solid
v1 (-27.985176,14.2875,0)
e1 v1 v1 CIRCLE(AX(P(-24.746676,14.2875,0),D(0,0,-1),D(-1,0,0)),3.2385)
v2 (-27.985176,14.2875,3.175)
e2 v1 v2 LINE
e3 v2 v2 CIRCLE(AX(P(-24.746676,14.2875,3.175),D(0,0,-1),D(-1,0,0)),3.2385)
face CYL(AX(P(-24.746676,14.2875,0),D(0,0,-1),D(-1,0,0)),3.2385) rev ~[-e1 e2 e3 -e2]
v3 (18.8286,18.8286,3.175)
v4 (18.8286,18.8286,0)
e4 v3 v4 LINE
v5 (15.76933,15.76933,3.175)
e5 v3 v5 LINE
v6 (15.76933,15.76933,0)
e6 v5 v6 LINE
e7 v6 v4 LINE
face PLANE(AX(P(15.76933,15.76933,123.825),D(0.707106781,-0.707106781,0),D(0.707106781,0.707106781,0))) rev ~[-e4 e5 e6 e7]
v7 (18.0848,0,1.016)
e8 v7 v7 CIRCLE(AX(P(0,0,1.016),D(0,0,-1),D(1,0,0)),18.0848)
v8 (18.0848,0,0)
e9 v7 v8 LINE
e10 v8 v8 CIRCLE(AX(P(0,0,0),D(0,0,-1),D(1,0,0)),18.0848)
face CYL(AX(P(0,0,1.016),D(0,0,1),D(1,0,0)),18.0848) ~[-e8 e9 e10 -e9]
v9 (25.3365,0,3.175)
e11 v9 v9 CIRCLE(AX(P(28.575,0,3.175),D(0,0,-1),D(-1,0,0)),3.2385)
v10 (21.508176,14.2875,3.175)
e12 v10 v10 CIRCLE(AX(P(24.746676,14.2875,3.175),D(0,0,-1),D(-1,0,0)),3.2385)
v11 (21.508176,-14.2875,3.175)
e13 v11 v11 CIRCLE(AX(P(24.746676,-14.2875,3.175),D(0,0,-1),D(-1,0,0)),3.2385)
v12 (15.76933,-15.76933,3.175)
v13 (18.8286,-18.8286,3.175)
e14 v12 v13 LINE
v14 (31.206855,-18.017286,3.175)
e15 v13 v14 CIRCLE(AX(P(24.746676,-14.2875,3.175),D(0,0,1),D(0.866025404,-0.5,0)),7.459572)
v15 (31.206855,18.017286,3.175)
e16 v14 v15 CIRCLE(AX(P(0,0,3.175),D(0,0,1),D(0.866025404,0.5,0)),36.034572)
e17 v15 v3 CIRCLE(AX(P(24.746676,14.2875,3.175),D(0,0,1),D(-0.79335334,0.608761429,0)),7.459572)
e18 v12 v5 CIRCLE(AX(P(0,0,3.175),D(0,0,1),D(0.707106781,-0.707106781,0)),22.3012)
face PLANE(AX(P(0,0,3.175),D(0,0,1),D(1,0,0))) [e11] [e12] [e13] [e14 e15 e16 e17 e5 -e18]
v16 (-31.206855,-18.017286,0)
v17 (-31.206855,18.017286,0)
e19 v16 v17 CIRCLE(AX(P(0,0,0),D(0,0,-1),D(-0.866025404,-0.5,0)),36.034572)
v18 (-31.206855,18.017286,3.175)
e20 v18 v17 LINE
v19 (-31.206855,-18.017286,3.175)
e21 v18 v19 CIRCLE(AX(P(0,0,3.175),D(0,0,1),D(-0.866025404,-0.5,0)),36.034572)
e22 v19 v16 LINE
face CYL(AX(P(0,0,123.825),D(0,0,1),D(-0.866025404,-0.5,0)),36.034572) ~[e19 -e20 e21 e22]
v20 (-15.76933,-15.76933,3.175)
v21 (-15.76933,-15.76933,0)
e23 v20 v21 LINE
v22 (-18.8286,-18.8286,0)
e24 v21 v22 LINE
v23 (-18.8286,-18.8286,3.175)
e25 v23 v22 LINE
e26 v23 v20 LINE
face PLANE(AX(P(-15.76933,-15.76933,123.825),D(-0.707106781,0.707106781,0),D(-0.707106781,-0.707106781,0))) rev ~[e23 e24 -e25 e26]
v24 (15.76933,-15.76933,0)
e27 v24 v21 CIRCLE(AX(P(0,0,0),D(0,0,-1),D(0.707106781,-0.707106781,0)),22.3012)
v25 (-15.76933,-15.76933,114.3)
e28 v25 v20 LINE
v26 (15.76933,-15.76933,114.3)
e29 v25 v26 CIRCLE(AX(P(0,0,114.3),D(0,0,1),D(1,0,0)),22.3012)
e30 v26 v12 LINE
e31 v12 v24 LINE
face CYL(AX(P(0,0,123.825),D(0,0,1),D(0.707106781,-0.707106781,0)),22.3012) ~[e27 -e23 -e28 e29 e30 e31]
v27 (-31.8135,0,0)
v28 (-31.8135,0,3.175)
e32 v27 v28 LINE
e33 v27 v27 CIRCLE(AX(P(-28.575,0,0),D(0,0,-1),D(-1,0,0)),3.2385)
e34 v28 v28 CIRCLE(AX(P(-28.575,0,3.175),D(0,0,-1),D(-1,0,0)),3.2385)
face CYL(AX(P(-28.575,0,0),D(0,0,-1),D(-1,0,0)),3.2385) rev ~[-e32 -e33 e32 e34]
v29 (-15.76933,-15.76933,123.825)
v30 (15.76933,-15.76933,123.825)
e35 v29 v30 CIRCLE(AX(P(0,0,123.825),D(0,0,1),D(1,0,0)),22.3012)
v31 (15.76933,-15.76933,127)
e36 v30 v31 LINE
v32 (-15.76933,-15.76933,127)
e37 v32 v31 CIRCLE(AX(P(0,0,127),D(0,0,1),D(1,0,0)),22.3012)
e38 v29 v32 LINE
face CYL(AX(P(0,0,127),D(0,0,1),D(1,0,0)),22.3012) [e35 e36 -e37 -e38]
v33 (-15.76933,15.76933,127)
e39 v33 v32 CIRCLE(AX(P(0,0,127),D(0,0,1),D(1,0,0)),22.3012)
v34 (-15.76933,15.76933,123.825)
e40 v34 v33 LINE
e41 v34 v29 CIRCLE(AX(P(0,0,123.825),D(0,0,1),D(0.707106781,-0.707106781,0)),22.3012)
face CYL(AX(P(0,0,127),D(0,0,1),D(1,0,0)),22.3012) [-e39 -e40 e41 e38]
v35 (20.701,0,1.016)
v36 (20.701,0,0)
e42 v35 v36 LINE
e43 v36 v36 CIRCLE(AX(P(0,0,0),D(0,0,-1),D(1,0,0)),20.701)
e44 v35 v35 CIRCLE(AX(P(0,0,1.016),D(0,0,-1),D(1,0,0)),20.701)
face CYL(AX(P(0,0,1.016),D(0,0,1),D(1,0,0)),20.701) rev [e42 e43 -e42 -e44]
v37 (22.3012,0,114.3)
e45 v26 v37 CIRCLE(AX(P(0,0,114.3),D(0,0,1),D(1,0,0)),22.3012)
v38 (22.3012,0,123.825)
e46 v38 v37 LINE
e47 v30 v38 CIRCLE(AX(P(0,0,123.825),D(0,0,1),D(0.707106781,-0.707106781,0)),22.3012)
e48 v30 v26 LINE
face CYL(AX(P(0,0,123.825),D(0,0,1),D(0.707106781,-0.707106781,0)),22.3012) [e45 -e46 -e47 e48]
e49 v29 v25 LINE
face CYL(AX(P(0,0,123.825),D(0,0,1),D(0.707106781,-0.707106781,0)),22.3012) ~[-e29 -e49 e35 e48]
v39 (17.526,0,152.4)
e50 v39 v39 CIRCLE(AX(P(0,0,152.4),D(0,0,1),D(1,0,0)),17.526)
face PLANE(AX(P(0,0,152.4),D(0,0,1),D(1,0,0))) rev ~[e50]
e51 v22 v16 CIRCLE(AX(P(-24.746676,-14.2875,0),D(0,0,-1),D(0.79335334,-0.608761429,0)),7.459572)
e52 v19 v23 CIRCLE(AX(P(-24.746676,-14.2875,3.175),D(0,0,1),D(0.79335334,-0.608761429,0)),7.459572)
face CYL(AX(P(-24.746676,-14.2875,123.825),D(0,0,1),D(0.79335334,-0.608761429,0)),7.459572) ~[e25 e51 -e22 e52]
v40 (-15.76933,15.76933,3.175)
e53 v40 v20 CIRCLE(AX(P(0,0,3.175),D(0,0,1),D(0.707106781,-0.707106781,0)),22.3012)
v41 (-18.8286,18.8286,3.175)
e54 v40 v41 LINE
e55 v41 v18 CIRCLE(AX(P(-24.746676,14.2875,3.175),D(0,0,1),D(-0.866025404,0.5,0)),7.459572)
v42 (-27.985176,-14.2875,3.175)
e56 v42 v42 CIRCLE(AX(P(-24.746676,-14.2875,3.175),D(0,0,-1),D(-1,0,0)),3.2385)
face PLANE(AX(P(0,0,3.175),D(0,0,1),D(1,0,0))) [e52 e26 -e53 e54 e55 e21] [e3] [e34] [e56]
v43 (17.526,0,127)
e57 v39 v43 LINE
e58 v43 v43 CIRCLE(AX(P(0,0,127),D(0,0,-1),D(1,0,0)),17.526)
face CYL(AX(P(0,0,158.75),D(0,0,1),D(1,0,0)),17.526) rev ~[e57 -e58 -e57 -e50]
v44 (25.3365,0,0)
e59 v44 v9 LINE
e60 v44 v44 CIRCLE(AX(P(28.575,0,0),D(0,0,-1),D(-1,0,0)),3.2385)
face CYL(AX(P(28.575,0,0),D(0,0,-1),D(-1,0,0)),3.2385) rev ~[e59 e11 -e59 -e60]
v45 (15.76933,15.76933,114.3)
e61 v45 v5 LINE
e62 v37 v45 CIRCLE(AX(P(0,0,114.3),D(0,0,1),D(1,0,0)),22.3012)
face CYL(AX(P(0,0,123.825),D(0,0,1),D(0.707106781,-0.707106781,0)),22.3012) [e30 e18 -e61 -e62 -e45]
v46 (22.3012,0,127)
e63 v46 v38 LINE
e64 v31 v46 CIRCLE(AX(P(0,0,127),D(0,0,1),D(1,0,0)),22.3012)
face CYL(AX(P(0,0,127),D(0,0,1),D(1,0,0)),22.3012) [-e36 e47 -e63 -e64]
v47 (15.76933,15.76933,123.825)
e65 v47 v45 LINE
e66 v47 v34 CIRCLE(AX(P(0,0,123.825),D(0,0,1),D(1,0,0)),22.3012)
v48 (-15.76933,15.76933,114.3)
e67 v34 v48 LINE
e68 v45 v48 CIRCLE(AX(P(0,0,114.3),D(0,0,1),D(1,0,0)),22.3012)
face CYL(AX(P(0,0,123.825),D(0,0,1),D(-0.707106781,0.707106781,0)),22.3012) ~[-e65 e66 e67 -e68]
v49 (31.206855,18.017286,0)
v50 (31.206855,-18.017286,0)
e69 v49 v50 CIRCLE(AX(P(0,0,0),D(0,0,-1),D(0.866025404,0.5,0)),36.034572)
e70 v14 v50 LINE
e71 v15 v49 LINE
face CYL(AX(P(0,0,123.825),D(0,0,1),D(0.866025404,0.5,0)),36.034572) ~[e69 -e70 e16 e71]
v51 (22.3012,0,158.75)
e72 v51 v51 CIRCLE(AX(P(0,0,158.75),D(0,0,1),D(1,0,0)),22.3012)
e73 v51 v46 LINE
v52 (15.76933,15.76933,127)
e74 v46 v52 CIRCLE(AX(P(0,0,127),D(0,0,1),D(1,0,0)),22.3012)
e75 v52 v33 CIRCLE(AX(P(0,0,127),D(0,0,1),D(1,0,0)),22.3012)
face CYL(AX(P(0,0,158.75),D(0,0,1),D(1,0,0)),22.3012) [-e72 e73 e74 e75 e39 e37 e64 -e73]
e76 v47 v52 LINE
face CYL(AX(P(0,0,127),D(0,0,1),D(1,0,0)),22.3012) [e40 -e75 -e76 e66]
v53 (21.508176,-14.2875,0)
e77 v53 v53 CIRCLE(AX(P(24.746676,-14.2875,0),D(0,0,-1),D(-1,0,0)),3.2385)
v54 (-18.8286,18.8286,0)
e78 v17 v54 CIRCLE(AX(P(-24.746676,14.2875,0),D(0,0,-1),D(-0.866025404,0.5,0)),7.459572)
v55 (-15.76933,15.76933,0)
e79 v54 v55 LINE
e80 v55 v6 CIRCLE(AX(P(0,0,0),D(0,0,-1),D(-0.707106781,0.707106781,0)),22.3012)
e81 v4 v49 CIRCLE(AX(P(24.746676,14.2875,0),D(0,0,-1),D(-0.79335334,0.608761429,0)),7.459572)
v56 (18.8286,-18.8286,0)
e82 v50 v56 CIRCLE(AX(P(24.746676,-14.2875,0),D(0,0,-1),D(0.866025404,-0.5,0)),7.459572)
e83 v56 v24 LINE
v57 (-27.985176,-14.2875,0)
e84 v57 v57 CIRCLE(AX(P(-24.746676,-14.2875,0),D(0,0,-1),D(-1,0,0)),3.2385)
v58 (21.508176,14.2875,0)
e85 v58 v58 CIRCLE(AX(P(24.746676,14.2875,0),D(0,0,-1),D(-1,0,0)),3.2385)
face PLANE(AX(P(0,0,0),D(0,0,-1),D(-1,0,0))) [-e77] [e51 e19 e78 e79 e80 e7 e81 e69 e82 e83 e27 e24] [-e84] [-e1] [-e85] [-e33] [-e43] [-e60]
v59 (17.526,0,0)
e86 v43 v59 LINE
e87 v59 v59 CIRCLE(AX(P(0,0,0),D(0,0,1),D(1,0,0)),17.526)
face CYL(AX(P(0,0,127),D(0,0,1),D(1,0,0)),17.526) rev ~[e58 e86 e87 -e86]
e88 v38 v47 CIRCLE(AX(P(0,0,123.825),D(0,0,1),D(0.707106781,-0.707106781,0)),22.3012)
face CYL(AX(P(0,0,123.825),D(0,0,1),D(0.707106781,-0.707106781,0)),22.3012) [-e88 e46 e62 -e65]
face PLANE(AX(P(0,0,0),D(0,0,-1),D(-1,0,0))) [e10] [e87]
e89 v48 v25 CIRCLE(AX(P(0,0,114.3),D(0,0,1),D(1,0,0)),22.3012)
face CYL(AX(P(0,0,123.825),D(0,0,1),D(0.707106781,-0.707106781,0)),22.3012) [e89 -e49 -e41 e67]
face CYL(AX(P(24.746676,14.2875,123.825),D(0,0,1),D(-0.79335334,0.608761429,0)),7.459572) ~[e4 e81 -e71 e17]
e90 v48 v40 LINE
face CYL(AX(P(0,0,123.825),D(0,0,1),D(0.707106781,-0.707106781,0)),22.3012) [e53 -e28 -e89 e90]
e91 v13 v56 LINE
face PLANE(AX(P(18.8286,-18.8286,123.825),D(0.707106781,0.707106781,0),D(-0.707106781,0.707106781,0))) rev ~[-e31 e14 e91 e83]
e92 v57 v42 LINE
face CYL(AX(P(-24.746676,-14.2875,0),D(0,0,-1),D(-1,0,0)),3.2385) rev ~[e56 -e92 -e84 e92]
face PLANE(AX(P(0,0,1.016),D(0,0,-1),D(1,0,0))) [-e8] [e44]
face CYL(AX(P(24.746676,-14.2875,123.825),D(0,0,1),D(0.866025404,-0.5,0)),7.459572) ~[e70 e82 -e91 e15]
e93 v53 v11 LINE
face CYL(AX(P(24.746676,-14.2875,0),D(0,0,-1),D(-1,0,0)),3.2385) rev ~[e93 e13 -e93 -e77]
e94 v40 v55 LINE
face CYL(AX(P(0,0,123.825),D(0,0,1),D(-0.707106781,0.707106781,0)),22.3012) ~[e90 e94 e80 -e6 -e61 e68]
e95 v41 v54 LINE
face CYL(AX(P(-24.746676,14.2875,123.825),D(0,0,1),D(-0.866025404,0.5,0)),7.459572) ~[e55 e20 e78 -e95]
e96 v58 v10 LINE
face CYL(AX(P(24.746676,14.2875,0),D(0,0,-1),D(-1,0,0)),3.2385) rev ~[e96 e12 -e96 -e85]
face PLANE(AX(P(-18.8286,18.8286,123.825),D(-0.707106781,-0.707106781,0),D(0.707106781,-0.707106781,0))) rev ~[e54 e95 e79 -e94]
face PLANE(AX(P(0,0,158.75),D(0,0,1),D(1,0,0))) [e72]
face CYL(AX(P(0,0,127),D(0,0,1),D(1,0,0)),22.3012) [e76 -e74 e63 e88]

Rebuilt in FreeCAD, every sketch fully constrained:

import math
import FreeCAD as App
import Part
import Sketcher
from FreeCAD import Vector
Q = App.Units.Quantity

doc = App.newDocument("Part")
params = doc.addObject("Spreadsheet::Sheet", "Params")
for row, (alias, value) in enumerate([
    ("sketch1_diameter", "1.66 in"),
    ("sketch1_diameter2", "1.38 in"),
    ("pad1_length", "10 in"),
    ("sketch2_diameter", "1.66 in"),
    ("pad2_length", "0.25 in"),
    ("pocket1_length", "5 in"),
    ("sketch4_diameter", "2.75 in"),
    ("pad3_length", "0.125 in"),
    ("sketch5_radius", "0.125 in"),
    ("sketch6_diameter", "1.66 in"),
    ("pocket3_length", "0.25 in"),
    ("sketch7_diameter", "1.66 in"),
    ("pad4_length", "0.25 in"),
    ("sketch8_radius", "0.83 in"),
    ("sketch8_radius2", "1.375 in"),
    ("sketch9_radius", "1.375 in"),
    ("pad5_length", "0.125 in"),
    ("sketch10_diameter", "1.63 in"),
    ("sketch10_diameter2", "1.424 in"),
    ("pocket5_length", "0.04 in"),
    ("sketch11_diameter", "1.63 in"),
    ("sketch11_diameter2", "1.756 in"),
    ("pad6_length", "0.125 in"),
    ("sketch12_diameter", "0.25 in"),
    ("sketch12_diameter2", "1.66 in"),
    ("sketch12_radius", "0.878 in"),
    ("pad7_length", "4.875 in"),
    ("sketch13_diameter", "1.756 in"),
    ("pocket6_length", "4.75 in"),
    ("sketch14_diameter", "1.38 in"),
    ("sketch15_diameter", "1.63 in"),
    ("sketch15_diameter2", "1.424 in"),
    ("pocket8_length", "0.04 in"),
    ("sketch16_diameter", "1.756 in"),
    ("pocket9_length", "0.5 in"),
    ("sketch17_diameter", "1.63 in"),
    ("sketch17_diameter2", "1.38 in"),
    ("sketch17_diameter3", "1.756 in"),
    ("sketch17_diameter4", "1.424 in"),
    ("pad8_length", "1.25 in"),
    ("sketch18_diameter", "1.63 in"),
    ("sketch18_diameter2", "1.424 in"),
    ("pad9_length", "1.29 in"),
    ("sketch19_diameter", "1.38 in"),
    ("pad10_length", "0.25 in"),
    ("sketch20_diameter", "0.255 in"),
], start=1):
    params.set(f"A{row}", alias)
    params.set(f"B{row}", "=" + value)
    params.setAlias(f"B{row}", alias)

body = doc.addObject("PartDesign::Body", "Body")

sketch1 = body.newObject("Sketcher::SketchObject", "Sketch")
sketch1.AttachmentSupport = (doc.getObject("XY_Plane"), [""])
sketch1.MapMode = "FlatFace"
sketch1.addGeometry(Part.Circle(Vector(0, 0, 0), Vector(0, 0, 1), 21.082), False)
sketch1.addGeometry(Part.Circle(Vector(0, 0, 0), Vector(0, 0, 1), 17.526), False)
sketch1.addConstraint(Sketcher.Constraint("Coincident", 0, 3, -1, 1))
sketch1.addConstraint(Sketcher.Constraint("Coincident", 1, 3, -1, 1))
sketch1.addConstraint(Sketcher.Constraint("Diameter", 0, Q("1.66 in")))
sketch1.addConstraint(Sketcher.Constraint("Diameter", 1, Q("1.38 in")))
sketch1.setExpression("Constraints[2]", "Params.sketch1_diameter")
sketch1.setExpression("Constraints[3]", "Params.sketch1_diameter2")
pad1 = body.newObject("PartDesign::Pad", "Pad")
pad1.Profile = sketch1
pad1.setExpression("Length", "Params.pad1_length")

sketch2 = body.newObject("Sketcher::SketchObject", "Sketch001")
sketch2.AttachmentSupport = (doc.getObject("XY_Plane"), [""])
sketch2.MapMode = "FlatFace"
sketch2.AttachmentOffset = App.Placement(Vector(0, 0, -0.25 * 25.4), App.Rotation())
sketch2.addGeometry(Part.Circle(Vector(0, 0, 0), Vector(0, 0, 1), 21.082), False)
sketch2.addConstraint(Sketcher.Constraint("Coincident", 0, 3, -1, 1))
sketch2.addConstraint(Sketcher.Constraint("Diameter", 0, Q("1.66 in")))
sketch2.setExpression("Constraints[1]", "Params.sketch2_diameter")
pad2 = body.newObject("PartDesign::Pad", "Pad001")
pad2.Profile = sketch2
pad2.setExpression("Length", "Params.pad2_length")

sketch3 = body.newObject("Sketcher::SketchObject", "Sketch002")
sketch3.AttachmentSupport = (doc.getObject("XY_Plane"), [""])
sketch3.MapMode = "FlatFace"
sketch3.AttachmentOffset = App.Placement(Vector(0, 0, 10 * 25.4), App.Rotation())
sketch3.addGeometry(Part.Circle(Vector(0, 0, 0), Vector(0, 0, 1), 25.868376), False)
sketch3.addConstraint(Sketcher.Constraint("Coincident", 0, 3, -1, 1))
sketch3.addConstraint(Sketcher.Constraint("Diameter", 0, Q("51.736753 mm")))
pocket1 = body.newObject("PartDesign::Pocket", "Pocket")
pocket1.Profile = sketch3
pocket1.setExpression("Length", "Params.pocket1_length")

sketch4 = body.newObject("Sketcher::SketchObject", "Sketch003")
sketch4.AttachmentSupport = (doc.getObject("XY_Plane"), [""])
sketch4.MapMode = "FlatFace"
sketch4.AttachmentOffset = App.Placement(Vector(0, 0, 5 * 25.4), App.Rotation())
sketch4.addGeometry(Part.Circle(Vector(0, 0, 0), Vector(0, 0, 1), 34.925), False)
sketch4.addGeometry(Part.Circle(Vector(0, 0, 0), Vector(0, 0, 1), 19.091061), False)
sketch4.addConstraint(Sketcher.Constraint("Coincident", 0, 3, -1, 1))
sketch4.addConstraint(Sketcher.Constraint("Coincident", 1, 3, -1, 1))
sketch4.addConstraint(Sketcher.Constraint("Diameter", 0, Q("2.75 in")))
sketch4.addConstraint(Sketcher.Constraint("Diameter", 1, Q("38.182122 mm")))
sketch4.setExpression("Constraints[2]", "Params.sketch4_diameter")
pad3 = body.newObject("PartDesign::Pad", "Pad002")
pad3.Profile = sketch4
pad3.setExpression("Length", "Params.pad3_length")
pad3.Reversed = True

sketch5 = body.newObject("Sketcher::SketchObject", "Sketch004")
sketch5.AttachmentSupport = (doc.getObject("XY_Plane"), [""])
sketch5.MapMode = "FlatFace"
sketch5.AttachmentOffset = App.Placement(Vector(0, 0, 5 * 25.4), App.Rotation())
sketch5.addGeometry(Part.ArcOfCircle(Part.Circle(Vector(0, 28.575, 0), Vector(0, 0, 1), 3.175), math.radians(90), math.radians(270)), False)
sketch5.addGeometry(Part.ArcOfCircle(Part.Circle(Vector(0, 28.575, 0), Vector(0, 0, 1), 3.175), math.radians(-90), math.radians(0)), False)
sketch5.addGeometry(Part.ArcOfCircle(Part.Circle(Vector(0, 28.575, 0), Vector(0, 0, 1), 3.175), math.radians(0), math.radians(90)), False)
sketch5.addConstraint(Sketcher.Constraint("Tangent", 0, 2, 1, 1))
sketch5.addConstraint(Sketcher.Constraint("Tangent", 1, 2, 2, 1))
sketch5.addConstraint(Sketcher.Constraint("Tangent", 2, 2, 0, 1))
sketch5.addConstraint(Sketcher.Constraint("PointOnObject", 0, 3, -2))
sketch5.addConstraint(Sketcher.Constraint("PointOnObject", 0, 2, -2))
sketch5.addConstraint(Sketcher.Constraint("PointOnObject", 2, 2, -2))
sketch5.addConstraint(Sketcher.Constraint("Horizontal", 2, 3, 1, 2))
sketch5.addConstraint(Sketcher.Constraint("DistanceY", -1, 1, 0, 2, Q("1 in")))
sketch5.addConstraint(Sketcher.Constraint("Radius", 0, Q("0.125 in")))
sketch5.setExpression("Constraints[8]", "Params.sketch5_radius")
pocket2 = body.newObject("PartDesign::Pocket", "Pocket001")
pocket2.Profile = sketch5
pocket2.Type = "ThroughAll"
doc.recompute()

polarpattern = body.newObject("PartDesign::PolarPattern", "PolarPattern")
polarpattern.Originals = [pocket2]
polarpattern.Axis = (doc.getObject("Z_Axis"), [""])
polarpattern.Angle = 360
polarpattern.Occurrences = 12
body.Tip = polarpattern

sketch6 = body.newObject("Sketcher::SketchObject", "Sketch005")
sketch6.AttachmentSupport = (doc.getObject("XY_Plane"), [""])
sketch6.MapMode = "FlatFace"
sketch6.AttachmentOffset = App.Placement(Vector(0, 0, -0.25 * 25.4), App.Rotation())
sketch6.addGeometry(Part.Circle(Vector(0, 0, 0), Vector(0, 0, 1), 21.082), False)
sketch6.addConstraint(Sketcher.Constraint("Coincident", 0, 3, -1, 1))
sketch6.addConstraint(Sketcher.Constraint("Diameter", 0, Q("1.66 in")))
sketch6.setExpression("Constraints[1]", "Params.sketch6_diameter")
pocket3 = body.newObject("PartDesign::Pocket", "Pocket002")
pocket3.Profile = sketch6
pocket3.setExpression("Length", "Params.pocket3_length")
pocket3.Reversed = True

sketch7 = body.newObject("Sketcher::SketchObject", "Sketch006")
sketch7.AttachmentSupport = (doc.getObject("XY_Plane"), [""])
sketch7.MapMode = "FlatFace"
sketch7.addGeometry(Part.Circle(Vector(0, 0, 0), Vector(0, 0, 1), 21.082), False)
sketch7.addConstraint(Sketcher.Constraint("Coincident", 0, 3, -1, 1))
sketch7.addConstraint(Sketcher.Constraint("Diameter", 0, Q("1.66 in")))
sketch7.setExpression("Constraints[1]", "Params.sketch7_diameter")
pad4 = body.newObject("PartDesign::Pad", "Pad003")
pad4.Profile = sketch7
pad4.setExpression("Length", "Params.pad4_length")

sketch8 = body.newObject("Sketcher::SketchObject", "Sketch007")
sketch8.AttachmentSupport = (doc.getObject("XY_Plane"), [""])
sketch8.MapMode = "FlatFace"
sketch8.AttachmentOffset = App.Placement(Vector(0, 0, 5 * 25.4), App.Rotation())
sketch8.addGeometry(Part.ArcOfCircle(Part.Circle(Vector(24.746676, 14.2875, 0), Vector(0, 0, 1), 7.459572), math.radians(65.381676), math.radians(142.5)), False)
sketch8.addGeometry(Part.ArcOfCircle(Part.Circle(Vector(0, 0, 0), Vector(0, 0, 1), 34.925), math.radians(37.104072), math.radians(142.895928)), False)
sketch8.addGeometry(Part.ArcOfCircle(Part.Circle(Vector(-24.746676, 14.2875, 0), Vector(0, 0, 1), 7.459572), math.radians(37.5), math.radians(114.618324)), False)
sketch8.addGeometry(Part.LineSegment(Vector(-18.8286, 18.8286, 0), Vector(-14.907225, 14.907225, 0)), False)
sketch8.addGeometry(Part.ArcOfCircle(Part.Circle(Vector(0, 0, 0), Vector(0, 0, 1), 21.082), math.radians(45), math.radians(135)), False)
sketch8.addGeometry(Part.LineSegment(Vector(14.907225, 14.907225, 0), Vector(18.8286, 18.8286, 0)), False)
sketch8.addGeometry(Part.ArcOfCircle(Part.Circle(Vector(0, 0, 0), Vector(0, 0, 1), 21.082), math.radians(-135), math.radians(-45)), False)
sketch8.addGeometry(Part.LineSegment(Vector(-14.907225, -14.907225, 0), Vector(-18.8286, -18.8286, 0)), False)
sketch8.addGeometry(Part.ArcOfCircle(Part.Circle(Vector(-24.746676, -14.2875, 0), Vector(0, 0, 1), 7.459572), math.radians(-114.618324), math.radians(-37.5)), False)
sketch8.addGeometry(Part.ArcOfCircle(Part.Circle(Vector(0, 0, 0), Vector(0, 0, 1), 34.925), math.radians(-142.895928), math.radians(-37.104072)), False)
sketch8.addGeometry(Part.ArcOfCircle(Part.Circle(Vector(24.746676, -14.2875, 0), Vector(0, 0, 1), 7.459572), math.radians(-142.5), math.radians(-65.381676)), False)
sketch8.addGeometry(Part.LineSegment(Vector(18.8286, -18.8286, 0), Vector(14.907225, -14.907225, 0)), False)
sketch8.addConstraint(Sketcher.Constraint("Coincident", 0, 1, 1, 1))
sketch8.addConstraint(Sketcher.Constraint("Coincident", 1, 2, 2, 2))
sketch8.addConstraint(Sketcher.Constraint("Coincident", 2, 1, 3, 1))
sketch8.addConstraint(Sketcher.Constraint("Coincident", 3, 2, 4, 2))
sketch8.addConstraint(Sketcher.Constraint("Coincident", 4, 1, 5, 1))
sketch8.addConstraint(Sketcher.Constraint("Coincident", 5, 2, 0, 2))
sketch8.addConstraint(Sketcher.Constraint("Coincident", 6, 1, 7, 1))
sketch8.addConstraint(Sketcher.Constraint("Coincident", 7, 2, 8, 2))
sketch8.addConstraint(Sketcher.Constraint("Coincident", 8, 1, 9, 1))
sketch8.addConstraint(Sketcher.Constraint("Coincident", 9, 2, 10, 2))
sketch8.addConstraint(Sketcher.Constraint("Coincident", 10, 1, 11, 1))
sketch8.addConstraint(Sketcher.Constraint("Coincident", 11, 2, 6, 2))
sketch8.addConstraint(Sketcher.Constraint("Coincident", 1, 3, -1, 1))
sketch8.addConstraint(Sketcher.Constraint("Coincident", 4, 3, -1, 1))
sketch8.addConstraint(Sketcher.Constraint("Coincident", 6, 3, -1, 1))
sketch8.addConstraint(Sketcher.Constraint("Coincident", 9, 3, -1, 1))
sketch8.addConstraint(Sketcher.Constraint("Equal", 0, 2))
sketch8.addConstraint(Sketcher.Constraint("Equal", 4, 6))
sketch8.addConstraint(Sketcher.Constraint("Equal", 2, 8))
sketch8.addConstraint(Sketcher.Constraint("Equal", 1, 9))
sketch8.addConstraint(Sketcher.Constraint("Equal", 8, 10))
sketch8.addConstraint(Sketcher.Constraint("Symmetric", 0, 3, 8, 3, -1, 1))
sketch8.addConstraint(Sketcher.Constraint("Symmetric", 2, 3, 10, 3, -1, 1))
sketch8.addConstraint(Sketcher.Constraint("Symmetric", 0, 3, 2, 3, -2))
sketch8.addConstraint(Sketcher.Constraint("Perpendicular", 3, 5))
sketch8.addConstraint(Sketcher.Constraint("Parallel", 5, 7))
sketch8.addConstraint(Sketcher.Constraint("Perpendicular", 7, 11))
sketch8.addConstraint(Sketcher.Constraint("Horizontal", 3, 2, 4, 1))
sketch8.addConstraint(Sketcher.Constraint("Horizontal", 2, 1, 5, 2))
sketch8.addConstraint(Sketcher.Constraint("Horizontal", 7, 2, 10, 1))
sketch8.addConstraint(Sketcher.Constraint("Vertical", 3, 2, 6, 1))
sketch8.addConstraint(Sketcher.Constraint("Radius", 4, Q("0.83 in")))
sketch8.addConstraint(Sketcher.Constraint("Radius", 1, Q("1.375 in")))
sketch8.addConstraint(Sketcher.Constraint("DistanceY", -1, 1, 0, 3, Q("0.5625 in")))
sketch8.addConstraint(Sketcher.Constraint("Radius", 0, Q("7.459572 mm")))
sketch8.addConstraint(Sketcher.Constraint("DistanceX", 2, 1, -1, 1, Q("18.8286 mm")))
sketch8.addConstraint(Sketcher.Constraint("DistanceY", -1, 1, 2, 1, Q("18.8286 mm")))
sketch8.setExpression("Constraints[31]", "Params.sketch8_radius")
sketch8.setExpression("Constraints[32]", "Params.sketch8_radius2")
pocket4 = body.newObject("PartDesign::Pocket", "Pocket003")
pocket4.Profile = sketch8
pocket4.Type = "ThroughAll"

sketch9 = body.newObject("Sketcher::SketchObject", "Sketch008")
sketch9.AttachmentSupport = (doc.getObject("XY_Plane"), [""])
sketch9.MapMode = "FlatFace"
sketch9.AttachmentOffset = App.Placement(Vector(0, 0, 5 * 25.4), App.Rotation())
sketch9.addGeometry(Part.ArcOfCircle(Part.Circle(Vector(24.746676, 14.2875, 0), Vector(0, 0, 1), 7.459572), math.radians(30.000001), math.radians(65.381676)), False)
sketch9.addGeometry(Part.ArcOfCircle(Part.Circle(Vector(0, 0, 0), Vector(0, 0, 1), 34.925), math.radians(-37.104072), math.radians(37.104072)), False)
sketch9.addGeometry(Part.ArcOfCircle(Part.Circle(Vector(24.746676, -14.2875, 0), Vector(0, 0, 1), 7.459572), math.radians(-65.381676), math.radians(-30.000001)), False)
sketch9.addGeometry(Part.ArcOfCircle(Part.Circle(Vector(0, 0, 0), Vector(0, 0, 1), 36.034572), math.radians(-30), math.radians(30)), False)
sketch9.addGeometry(Part.ArcOfCircle(Part.Circle(Vector(-24.746676, 14.2875, 0), Vector(0, 0, 1), 7.459572), math.radians(114.618324), math.radians(149.999999)), False)
sketch9.addGeometry(Part.ArcOfCircle(Part.Circle(Vector(0, 0, 0), Vector(0, 0, 1), 36.034572), math.radians(150), math.radians(210.000001)), False)
sketch9.addGeometry(Part.ArcOfCircle(Part.Circle(Vector(-24.746676, -14.2875, 0), Vector(0, 0, 1), 7.459572), math.radians(-149.999997), math.radians(-114.618324)), False)
sketch9.addGeometry(Part.ArcOfCircle(Part.Circle(Vector(0, 0, 0), Vector(0, 0, 1), 34.925), math.radians(142.895928), math.radians(217.104072)), False)
sketch9.addConstraint(Sketcher.Constraint("Coincident", 0, 2, 1, 2))
sketch9.addConstraint(Sketcher.Constraint("Coincident", 1, 1, 2, 1))
sketch9.addConstraint(Sketcher.Constraint("Tangent", 2, 2, 3, 1))
sketch9.addConstraint(Sketcher.Constraint("Tangent", 3, 2, 0, 1))
sketch9.addConstraint(Sketcher.Constraint("Tangent", 4, 2, 5, 1))
sketch9.addConstraint(Sketcher.Constraint("Tangent", 5, 2, 6, 1))
sketch9.addConstraint(Sketcher.Constraint("Coincident", 6, 2, 7, 2))
sketch9.addConstraint(Sketcher.Constraint("Coincident", 7, 1, 4, 1))
sketch9.addConstraint(Sketcher.Constraint("Coincident", 1, 3, -1, 1))
sketch9.addConstraint(Sketcher.Constraint("Coincident", 3, 3, -1, 1))
sketch9.addConstraint(Sketcher.Constraint("Coincident", 5, 3, -1, 1))
sketch9.addConstraint(Sketcher.Constraint("Coincident", 7, 3, -1, 1))
sketch9.addConstraint(Sketcher.Constraint("Equal", 0, 2))
sketch9.addConstraint(Sketcher.Constraint("Equal", 2, 4))
sketch9.addConstraint(Sketcher.Constraint("Equal", 3, 5))
sketch9.addConstraint(Sketcher.Constraint("Equal", 4, 6))
sketch9.addConstraint(Sketcher.Constraint("Equal", 1, 7))
sketch9.addConstraint(Sketcher.Constraint("Horizontal", 0, 3, 4, 3))
sketch9.addConstraint(Sketcher.Constraint("Horizontal", 2, 3, 6, 3))
sketch9.addConstraint(Sketcher.Constraint("Vertical", 0, 3, 2, 3))
sketch9.addConstraint(Sketcher.Constraint("Radius", 1, Q("1.375 in")))
sketch9.addConstraint(Sketcher.Constraint("DistanceY", -1, 1, 0, 3, Q("0.5625 in")))
sketch9.addConstraint(Sketcher.Constraint("Radius", 0, Q("7.459572 mm")))
sketch9.addConstraint(Sketcher.Constraint("Radius", 3, Q("36.034572 mm")))
sketch9.setExpression("Constraints[20]", "Params.sketch9_radius")
pad5 = body.newObject("PartDesign::Pad", "Pad004")
pad5.Profile = sketch9
pad5.setExpression("Length", "Params.pad5_length")
pad5.Reversed = True

sketch10 = body.newObject("Sketcher::SketchObject", "Sketch009")
sketch10.AttachmentSupport = (doc.getObject("XY_Plane"), [""])
sketch10.MapMode = "FlatFace"
sketch10.AttachmentOffset = App.Placement(Vector(0, 0, 5 * 25.4), App.Rotation())
sketch10.addGeometry(Part.Circle(Vector(0, 0, 0), Vector(0, 0, 1), 20.701), False)
sketch10.addGeometry(Part.Circle(Vector(0, 0, 0), Vector(0, 0, 1), 18.0848), False)
sketch10.addConstraint(Sketcher.Constraint("Coincident", 0, 3, -1, 1))
sketch10.addConstraint(Sketcher.Constraint("Coincident", 1, 3, -1, 1))
sketch10.addConstraint(Sketcher.Constraint("Diameter", 0, Q("1.63 in")))
sketch10.addConstraint(Sketcher.Constraint("Diameter", 1, Q("1.424 in")))
sketch10.setExpression("Constraints[2]", "Params.sketch10_diameter")
sketch10.setExpression("Constraints[3]", "Params.sketch10_diameter2")
pocket5 = body.newObject("PartDesign::Pocket", "Pocket004")
pocket5.Profile = sketch10
pocket5.setExpression("Length", "Params.pocket5_length")

sketch11 = body.newObject("Sketcher::SketchObject", "Sketch010")
sketch11.AttachmentSupport = (doc.getObject("XY_Plane"), [""])
sketch11.MapMode = "FlatFace"
sketch11.AttachmentOffset = App.Placement(Vector(0, 0, 5 * 25.4), App.Rotation())
sketch11.addGeometry(Part.Circle(Vector(0, 0, 0), Vector(0, 0, 1), 22.3012), False)
sketch11.addGeometry(Part.Circle(Vector(0, 0, 0), Vector(0, 0, 1), 20.701), False)
sketch11.addConstraint(Sketcher.Constraint("Coincident", 0, 3, -1, 1))
sketch11.addConstraint(Sketcher.Constraint("Coincident", 1, 3, -1, 1))
sketch11.addConstraint(Sketcher.Constraint("Diameter", 1, Q("1.63 in")))
sketch11.addConstraint(Sketcher.Constraint("Diameter", 0, Q("1.756 in")))
sketch11.setExpression("Constraints[2]", "Params.sketch11_diameter")
sketch11.setExpression("Constraints[3]", "Params.sketch11_diameter2")
pad6 = body.newObject("PartDesign::Pad", "Pad005")
pad6.Profile = sketch11
pad6.setExpression("Length", "Params.pad6_length")
pad6.Reversed = True

sketch12 = body.newObject("Sketcher::SketchObject", "Sketch011")
sketch12.AttachmentSupport = (doc.getObject("XY_Plane"), [""])
sketch12.MapMode = "FlatFace"
sketch12.AttachmentOffset = App.Placement(Vector(0, 0, 4.875 * 25.4), App.Rotation())
sketch12.addGeometry(Part.ArcOfCircle(Part.Circle(Vector(-24.746676, 14.2875, 0), Vector(0, 0, 1), 7.459572), math.radians(37.5), math.radians(150)), False)
sketch12.addGeometry(Part.LineSegment(Vector(-18.8286, 18.8286, 0), Vector(-15.76933, 15.76933, 0)), False)
sketch12.addGeometry(Part.ArcOfCircle(Part.Circle(Vector(0, 0, 0), Vector(0, 0, 1), 22.3012), math.radians(45), math.radians(135)), False)
sketch12.addGeometry(Part.LineSegment(Vector(15.76933, 15.76933, 0), Vector(18.8286, 18.8286, 0)), False)
sketch12.addGeometry(Part.ArcOfCircle(Part.Circle(Vector(24.746676, 14.2875, 0), Vector(0, 0, 1), 7.459572), math.radians(30), math.radians(142.5)), False)
sketch12.addGeometry(Part.ArcOfCircle(Part.Circle(Vector(0, 0, 0), Vector(0, 0, 1), 36.034572), math.radians(-30), math.radians(30)), False)
sketch12.addGeometry(Part.ArcOfCircle(Part.Circle(Vector(24.746676, -14.2875, 0), Vector(0, 0, 1), 7.459572), math.radians(-142.5), math.radians(-30)), False)
sketch12.addGeometry(Part.LineSegment(Vector(18.8286, -18.8286, 0), Vector(15.76933, -15.76933, 0)), False)
sketch12.addGeometry(Part.ArcOfCircle(Part.Circle(Vector(0, 0, 0), Vector(0, 0, 1), 22.3012), math.radians(-135), math.radians(-45)), False)
sketch12.addGeometry(Part.LineSegment(Vector(-15.76933, -15.76933, 0), Vector(-18.8286, -18.8286, 0)), False)
sketch12.addGeometry(Part.ArcOfCircle(Part.Circle(Vector(-24.746676, -14.2875, 0), Vector(0, 0, 1), 7.459572), math.radians(-150), math.radians(-37.5)), False)
sketch12.addGeometry(Part.ArcOfCircle(Part.Circle(Vector(0, 0, 0), Vector(0, 0, 1), 36.034572), math.radians(150), math.radians(210)), False)
sketch12.addGeometry(Part.Circle(Vector(24.746676, -14.2875, 0), Vector(0, 0, 1), 3.175), False)
sketch12.addGeometry(Part.Circle(Vector(-24.746676, -14.2875, 0), Vector(0, 0, 1), 3.175), False)
sketch12.addGeometry(Part.Circle(Vector(28.575, 0, 0), Vector(0, 0, 1), 3.175), False)
sketch12.addGeometry(Part.Circle(Vector(24.746676, 14.2875, 0), Vector(0, 0, 1), 3.175), False)
sketch12.addGeometry(Part.Circle(Vector(0, 0, 0), Vector(0, 0, 1), 21.082), False)
sketch12.addGeometry(Part.Circle(Vector(-28.575, 0, 0), Vector(0, 0, 1), 3.175), False)
sketch12.addGeometry(Part.Circle(Vector(-24.746676, 14.2875, 0), Vector(0, 0, 1), 3.175), False)
sketch12.addConstraint(Sketcher.Constraint("Coincident", 0, 1, 1, 1))
sketch12.addConstraint(Sketcher.Constraint("Coincident", 1, 2, 2, 2))
sketch12.addConstraint(Sketcher.Constraint("Coincident", 2, 1, 3, 1))
sketch12.addConstraint(Sketcher.Constraint("Coincident", 3, 2, 4, 2))
sketch12.addConstraint(Sketcher.Constraint("Tangent", 4, 1, 5, 2))
sketch12.addConstraint(Sketcher.Constraint("Tangent", 5, 1, 6, 2))
sketch12.addConstraint(Sketcher.Constraint("Coincident", 6, 1, 7, 1))
sketch12.addConstraint(Sketcher.Constraint("Coincident", 7, 2, 8, 2))
sketch12.addConstraint(Sketcher.Constraint("Coincident", 8, 1, 9, 1))
sketch12.addConstraint(Sketcher.Constraint("Coincident", 9, 2, 10, 2))
sketch12.addConstraint(Sketcher.Constraint("Tangent", 10, 1, 11, 2))
sketch12.addConstraint(Sketcher.Constraint("Tangent", 11, 1, 0, 2))
sketch12.addConstraint(Sketcher.Constraint("Coincident", 2, 3, -1, 1))
sketch12.addConstraint(Sketcher.Constraint("Coincident", 5, 3, -1, 1))
sketch12.addConstraint(Sketcher.Constraint("Coincident", 8, 3, -1, 1))
sketch12.addConstraint(Sketcher.Constraint("Coincident", 11, 3, -1, 1))
sketch12.addConstraint(Sketcher.Constraint("Coincident", 16, 3, -1, 1))
sketch12.addConstraint(Sketcher.Constraint("Coincident", 12, 3, 6, 3))
sketch12.addConstraint(Sketcher.Constraint("Coincident", 13, 3, 10, 3))
sketch12.addConstraint(Sketcher.Constraint("Coincident", 15, 3, 4, 3))
sketch12.addConstraint(Sketcher.Constraint("Coincident", 18, 3, 0, 3))
sketch12.addConstraint(Sketcher.Constraint("Equal", 0, 4))
sketch12.addConstraint(Sketcher.Constraint("Equal", 4, 6))
sketch12.addConstraint(Sketcher.Constraint("Equal", 2, 8))
sketch12.addConstraint(Sketcher.Constraint("Equal", 6, 10))
sketch12.addConstraint(Sketcher.Constraint("Equal", 5, 11))
sketch12.addConstraint(Sketcher.Constraint("Equal", 12, 13))
sketch12.addConstraint(Sketcher.Constraint("Equal", 13, 14))
sketch12.addConstraint(Sketcher.Constraint("Equal", 14, 15))
sketch12.addConstraint(Sketcher.Constraint("Equal", 15, 17))
sketch12.addConstraint(Sketcher.Constraint("Equal", 17, 18))
sketch12.addConstraint(Sketcher.Constraint("Symmetric", 14, 3, 17, 3, -1, 1))
sketch12.addConstraint(Sketcher.Constraint("Symmetric", 0, 1, 6, 1, -1, 1))
sketch12.addConstraint(Sketcher.Constraint("Symmetric", 3, 2, 9, 2, -1, 1))
sketch12.addConstraint(Sketcher.Constraint("Symmetric", 0, 1, 3, 2, -2))
sketch12.addConstraint(Sketcher.Constraint("PointOnObject", 14, 3, -1))
sketch12.addConstraint(Sketcher.Constraint("Perpendicular", 1, 3))
sketch12.addConstraint(Sketcher.Constraint("Perpendicular", 3, 7))
sketch12.addConstraint(Sketcher.Constraint("Perpendicular", 7, 9))
sketch12.addConstraint(Sketcher.Constraint("Horizontal", 1, 2, 2, 1))
sketch12.addConstraint(Sketcher.Constraint("Diameter", 12, Q("0.25 in")))
sketch12.addConstraint(Sketcher.Constraint("Diameter", 16, Q("1.66 in")))
sketch12.addConstraint(Sketcher.Constraint("Radius", 2, Q("0.878 in")))
sketch12.addConstraint(Sketcher.Constraint("DistanceY", -1, 1, 0, 3, Q("0.5625 in")))
sketch12.addConstraint(Sketcher.Constraint("DistanceX", -1, 1, 14, 3, Q("1.125 in")))
sketch12.addConstraint(Sketcher.Constraint("Radius", 0, Q("7.459572 mm")))
sketch12.addConstraint(Sketcher.Constraint("Radius", 5, Q("36.034572 mm")))
sketch12.addConstraint(Sketcher.Constraint("DistanceX", 0, 1, -1, 1, Q("18.8286 mm")))
sketch12.setExpression("Constraints[40]", "Params.sketch12_diameter")
sketch12.setExpression("Constraints[41]", "Params.sketch12_diameter2")
sketch12.setExpression("Constraints[42]", "Params.sketch12_radius")
pad7 = body.newObject("PartDesign::Pad", "Pad006")
pad7.Profile = sketch12
pad7.setExpression("Length", "Params.pad7_length")
pad7.Reversed = True

sketch13 = body.newObject("Sketcher::SketchObject", "Sketch012")
sketch13.AttachmentSupport = (doc.getObject("XY_Plane"), [""])
sketch13.MapMode = "FlatFace"
sketch13.AttachmentOffset = App.Placement(Vector(0, 0, 4.875 * 25.4), App.Rotation())
sketch13.addGeometry(Part.Circle(Vector(0, 0, 0), Vector(0, 0, 1), 47.46475), False)
sketch13.addGeometry(Part.Circle(Vector(0, 0, 0), Vector(0, 0, 1), 22.3012), False)
sketch13.addConstraint(Sketcher.Constraint("Coincident", 0, 3, -1, 1))
sketch13.addConstraint(Sketcher.Constraint("Coincident", 1, 3, -1, 1))
sketch13.addConstraint(Sketcher.Constraint("Diameter", 1, Q("1.756 in")))
sketch13.addConstraint(Sketcher.Constraint("Diameter", 0, Q("94.9295 mm")))
sketch13.setExpression("Constraints[2]", "Params.sketch13_diameter")
pocket6 = body.newObject("PartDesign::Pocket", "Pocket005")
pocket6.Profile = sketch13
pocket6.setExpression("Length", "Params.pocket6_length")

sketch14 = body.newObject("Sketcher::SketchObject", "Sketch013")
sketch14.AttachmentSupport = (doc.getObject("XY_Plane"), [""])
sketch14.MapMode = "FlatFace"
sketch14.AttachmentOffset = App.Placement(Vector(0, 0, 5 * 25.4), App.Rotation())
sketch14.addGeometry(Part.Circle(Vector(0, 0, 0), Vector(0, 0, 1), 17.526), False)
sketch14.addConstraint(Sketcher.Constraint("Coincident", 0, 3, -1, 1))
sketch14.addConstraint(Sketcher.Constraint("Diameter", 0, Q("1.38 in")))
sketch14.setExpression("Constraints[1]", "Params.sketch14_diameter")
pocket7 = body.newObject("PartDesign::Pocket", "Pocket006")
pocket7.Profile = sketch14
pocket7.Type = "ThroughAll"

sketch15 = body.newObject("Sketcher::SketchObject", "Sketch014")
sketch15.AttachmentSupport = (doc.getObject("XY_Plane"), [""])
sketch15.MapMode = "FlatFace"
sketch15.AttachmentOffset = App.Placement(Vector(0, 0, 0.04 * 25.4), App.Rotation())
sketch15.addGeometry(Part.Circle(Vector(0, 0, 0), Vector(0, 0, 1), 20.701), False)
sketch15.addGeometry(Part.Circle(Vector(0, 0, 0), Vector(0, 0, 1), 18.0848), False)
sketch15.addConstraint(Sketcher.Constraint("Coincident", 0, 3, -1, 1))
sketch15.addConstraint(Sketcher.Constraint("Coincident", 1, 3, -1, 1))
sketch15.addConstraint(Sketcher.Constraint("Diameter", 0, Q("1.63 in")))
sketch15.addConstraint(Sketcher.Constraint("Diameter", 1, Q("1.424 in")))
sketch15.setExpression("Constraints[2]", "Params.sketch15_diameter")
sketch15.setExpression("Constraints[3]", "Params.sketch15_diameter2")
pocket8 = body.newObject("PartDesign::Pocket", "Pocket007")
pocket8.Profile = sketch15
pocket8.setExpression("Length", "Params.pocket8_length")

sketch16 = body.newObject("Sketcher::SketchObject", "Sketch015")
sketch16.AttachmentSupport = (doc.getObject("XY_Plane"), [""])
sketch16.MapMode = "FlatFace"
sketch16.AttachmentOffset = App.Placement(Vector(0, 0, 5 * 25.4), App.Rotation())
sketch16.addGeometry(Part.Circle(Vector(0, 0, 0), Vector(0, 0, 1), 44.795311), False)
sketch16.addGeometry(Part.Circle(Vector(0, 0, 0), Vector(0, 0, 1), 22.3012), False)
sketch16.addConstraint(Sketcher.Constraint("Coincident", 0, 3, -1, 1))
sketch16.addConstraint(Sketcher.Constraint("Coincident", 1, 3, -1, 1))
sketch16.addConstraint(Sketcher.Constraint("Diameter", 1, Q("1.756 in")))
sketch16.addConstraint(Sketcher.Constraint("Diameter", 0, Q("89.590621 mm")))
sketch16.setExpression("Constraints[2]", "Params.sketch16_diameter")
pocket9 = body.newObject("PartDesign::Pocket", "Pocket008")
pocket9.Profile = sketch16
pocket9.setExpression("Length", "Params.pocket9_length")

sketch17 = body.newObject("Sketcher::SketchObject", "Sketch016")
sketch17.AttachmentSupport = (doc.getObject("XY_Plane"), [""])
sketch17.MapMode = "FlatFace"
sketch17.AttachmentOffset = App.Placement(Vector(0, 0, 6.25 * 25.4), App.Rotation())
sketch17.addGeometry(Part.Circle(Vector(0, 0, 0), Vector(0, 0, 1), 22.3012), False)
sketch17.addGeometry(Part.Circle(Vector(0, 0, 0), Vector(0, 0, 1), 20.701), False)
sketch17.addGeometry(Part.Circle(Vector(0, 0, 0), Vector(0, 0, 1), 18.0848), False)
sketch17.addGeometry(Part.Circle(Vector(0, 0, 0), Vector(0, 0, 1), 17.526), False)
sketch17.addConstraint(Sketcher.Constraint("Coincident", 0, 3, -1, 1))
sketch17.addConstraint(Sketcher.Constraint("Coincident", 1, 3, -1, 1))
sketch17.addConstraint(Sketcher.Constraint("Coincident", 2, 3, -1, 1))
sketch17.addConstraint(Sketcher.Constraint("Coincident", 3, 3, -1, 1))
sketch17.addConstraint(Sketcher.Constraint("Diameter", 1, Q("1.63 in")))
sketch17.addConstraint(Sketcher.Constraint("Diameter", 3, Q("1.38 in")))
sketch17.addConstraint(Sketcher.Constraint("Diameter", 0, Q("1.756 in")))
sketch17.addConstraint(Sketcher.Constraint("Diameter", 2, Q("1.424 in")))
sketch17.setExpression("Constraints[4]", "Params.sketch17_diameter")
sketch17.setExpression("Constraints[5]", "Params.sketch17_diameter2")
sketch17.setExpression("Constraints[6]", "Params.sketch17_diameter3")
sketch17.setExpression("Constraints[7]", "Params.sketch17_diameter4")
pad8 = body.newObject("PartDesign::Pad", "Pad007")
pad8.Profile = sketch17
pad8.setExpression("Length", "Params.pad8_length")
pad8.Reversed = True

sketch18 = body.newObject("Sketcher::SketchObject", "Sketch017")
sketch18.AttachmentSupport = (doc.getObject("XY_Plane"), [""])
sketch18.MapMode = "FlatFace"
sketch18.AttachmentOffset = App.Placement(Vector(0, 0, 6.25 * 25.4), App.Rotation())
sketch18.addGeometry(Part.Circle(Vector(0, 0, 0), Vector(0, 0, 1), 20.701), False)
sketch18.addGeometry(Part.Circle(Vector(0, 0, 0), Vector(0, 0, 1), 18.0848), False)
sketch18.addConstraint(Sketcher.Constraint("Coincident", 0, 3, -1, 1))
sketch18.addConstraint(Sketcher.Constraint("Coincident", 1, 3, -1, 1))
sketch18.addConstraint(Sketcher.Constraint("Diameter", 0, Q("1.63 in")))
sketch18.addConstraint(Sketcher.Constraint("Diameter", 1, Q("1.424 in")))
sketch18.setExpression("Constraints[2]", "Params.sketch18_diameter")
sketch18.setExpression("Constraints[3]", "Params.sketch18_diameter2")
pad9 = body.newObject("PartDesign::Pad", "Pad008")
pad9.Profile = sketch18
pad9.setExpression("Length", "Params.pad9_length")
pad9.Reversed = True

sketch19 = body.newObject("Sketcher::SketchObject", "Sketch018")
sketch19.AttachmentSupport = (doc.getObject("XY_Plane"), [""])
sketch19.MapMode = "FlatFace"
sketch19.AttachmentOffset = App.Placement(Vector(0, 0, 6.25 * 25.4), App.Rotation())
sketch19.addGeometry(Part.Circle(Vector(0, 0, 0), Vector(0, 0, 1), 17.526), False)
sketch19.addConstraint(Sketcher.Constraint("Coincident", 0, 3, -1, 1))
sketch19.addConstraint(Sketcher.Constraint("Diameter", 0, Q("1.38 in")))
sketch19.setExpression("Constraints[1]", "Params.sketch19_diameter")
pad10 = body.newObject("PartDesign::Pad", "Pad009")
pad10.Profile = sketch19
pad10.setExpression("Length", "Params.pad10_length")
pad10.Reversed = True

sketch20 = body.newObject("Sketcher::SketchObject", "Sketch019")
sketch20.AttachmentSupport = (doc.getObject("XY_Plane"), [""])
sketch20.MapMode = "FlatFace"
sketch20.addGeometry(Part.Circle(Vector(24.746676, 14.2875, 0), Vector(0, 0, 1), 3.2385), False)
sketch20.addGeometry(Part.Circle(Vector(28.575, 0, 0), Vector(0, 0, 1), 3.2385), False)
sketch20.addGeometry(Part.Circle(Vector(24.746676, -14.2875, 0), Vector(0, 0, 1), 3.2385), False)
sketch20.addGeometry(Part.Circle(Vector(-24.746676, 14.2875, 0), Vector(0, 0, 1), 3.2385), False)
sketch20.addGeometry(Part.Circle(Vector(-28.575, 0, 0), Vector(0, 0, 1), 3.2385), False)
sketch20.addGeometry(Part.Circle(Vector(-24.746676, -14.2875, 0), Vector(0, 0, 1), 3.2385), False)
sketch20.addConstraint(Sketcher.Constraint("Equal", 0, 1))
sketch20.addConstraint(Sketcher.Constraint("Equal", 1, 2))
sketch20.addConstraint(Sketcher.Constraint("Equal", 2, 3))
sketch20.addConstraint(Sketcher.Constraint("Equal", 3, 4))
sketch20.addConstraint(Sketcher.Constraint("Equal", 4, 5))
sketch20.addConstraint(Sketcher.Constraint("Symmetric", 2, 3, 3, 3, -1, 1))
sketch20.addConstraint(Sketcher.Constraint("Symmetric", 1, 3, 4, 3, -1, 1))
sketch20.addConstraint(Sketcher.Constraint("Symmetric", 0, 3, 5, 3, -1, 1))
sketch20.addConstraint(Sketcher.Constraint("Symmetric", 0, 3, 3, 3, -2))
sketch20.addConstraint(Sketcher.Constraint("PointOnObject", 1, 3, -1))
sketch20.addConstraint(Sketcher.Constraint("Diameter", 0, Q("0.255 in")))
sketch20.addConstraint(Sketcher.Constraint("DistanceX", 4, 3, 1, 3, Q("2.25 in")))
sketch20.addConstraint(Sketcher.Constraint("DistanceY", -1, 1, 0, 3, Q("0.5625 in")))
sketch20.addConstraint(Sketcher.Constraint("DistanceX", 3, 3, 0, 3, Q("49.493352 mm")))
sketch20.setExpression("Constraints[10]", "Params.sketch20_diameter")
pocket10 = body.newObject("PartDesign::Pocket", "Pocket009")
pocket10.Profile = sketch20
pocket10.Type = "ThroughAll"
pocket10.Reversed = True

doc.recompute()
